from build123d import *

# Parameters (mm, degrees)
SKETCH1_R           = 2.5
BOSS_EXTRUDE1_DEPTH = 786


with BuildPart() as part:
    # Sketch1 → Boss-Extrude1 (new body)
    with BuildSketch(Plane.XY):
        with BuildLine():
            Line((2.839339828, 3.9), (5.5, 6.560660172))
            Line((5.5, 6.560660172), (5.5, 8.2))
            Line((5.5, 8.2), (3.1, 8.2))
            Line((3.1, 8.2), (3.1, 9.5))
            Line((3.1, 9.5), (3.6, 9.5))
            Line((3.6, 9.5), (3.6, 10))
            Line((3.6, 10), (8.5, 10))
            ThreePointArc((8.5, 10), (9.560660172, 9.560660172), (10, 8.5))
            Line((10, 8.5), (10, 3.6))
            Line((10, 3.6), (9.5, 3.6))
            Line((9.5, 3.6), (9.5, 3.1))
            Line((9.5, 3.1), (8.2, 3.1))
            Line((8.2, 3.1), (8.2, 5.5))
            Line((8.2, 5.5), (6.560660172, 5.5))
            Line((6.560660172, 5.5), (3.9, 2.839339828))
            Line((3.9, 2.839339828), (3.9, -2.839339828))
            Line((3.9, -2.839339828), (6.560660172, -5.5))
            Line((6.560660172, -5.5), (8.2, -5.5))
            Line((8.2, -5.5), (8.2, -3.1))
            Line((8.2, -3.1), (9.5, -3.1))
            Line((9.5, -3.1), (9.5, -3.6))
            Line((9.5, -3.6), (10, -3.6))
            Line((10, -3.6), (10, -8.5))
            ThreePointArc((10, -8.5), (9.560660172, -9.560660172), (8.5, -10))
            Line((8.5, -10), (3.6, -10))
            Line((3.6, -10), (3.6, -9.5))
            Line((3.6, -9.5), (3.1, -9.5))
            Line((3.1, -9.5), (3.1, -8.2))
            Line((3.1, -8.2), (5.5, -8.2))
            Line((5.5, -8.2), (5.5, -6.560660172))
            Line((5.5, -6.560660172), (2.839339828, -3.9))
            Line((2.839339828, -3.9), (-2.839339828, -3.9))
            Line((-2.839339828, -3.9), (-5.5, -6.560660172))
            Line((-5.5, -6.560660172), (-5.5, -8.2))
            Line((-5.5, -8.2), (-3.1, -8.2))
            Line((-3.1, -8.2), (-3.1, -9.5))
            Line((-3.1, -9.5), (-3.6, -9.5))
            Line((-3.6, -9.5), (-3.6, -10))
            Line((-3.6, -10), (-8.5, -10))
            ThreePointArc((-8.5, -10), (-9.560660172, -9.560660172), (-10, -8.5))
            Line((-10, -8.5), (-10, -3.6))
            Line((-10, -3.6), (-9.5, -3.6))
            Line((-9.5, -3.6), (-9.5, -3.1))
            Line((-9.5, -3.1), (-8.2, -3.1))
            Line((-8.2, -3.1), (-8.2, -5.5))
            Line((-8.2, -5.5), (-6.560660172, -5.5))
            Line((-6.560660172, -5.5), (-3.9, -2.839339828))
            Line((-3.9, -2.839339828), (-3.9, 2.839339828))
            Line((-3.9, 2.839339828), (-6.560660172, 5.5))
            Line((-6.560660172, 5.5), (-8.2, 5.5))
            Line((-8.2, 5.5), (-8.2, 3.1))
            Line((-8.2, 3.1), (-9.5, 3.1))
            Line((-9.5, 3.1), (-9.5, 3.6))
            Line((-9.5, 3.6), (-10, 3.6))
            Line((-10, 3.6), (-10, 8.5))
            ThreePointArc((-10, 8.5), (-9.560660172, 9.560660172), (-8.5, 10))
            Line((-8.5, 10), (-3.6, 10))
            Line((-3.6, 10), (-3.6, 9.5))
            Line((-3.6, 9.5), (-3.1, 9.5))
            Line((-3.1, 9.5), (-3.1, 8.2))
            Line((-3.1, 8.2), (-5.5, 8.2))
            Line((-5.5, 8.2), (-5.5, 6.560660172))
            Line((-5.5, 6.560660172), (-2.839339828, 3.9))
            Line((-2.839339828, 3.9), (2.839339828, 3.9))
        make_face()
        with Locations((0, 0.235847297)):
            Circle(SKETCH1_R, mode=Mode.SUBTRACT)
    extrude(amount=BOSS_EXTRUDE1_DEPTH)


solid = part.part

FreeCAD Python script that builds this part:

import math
import FreeCAD as App
import Part
import Sketcher
from FreeCAD import Vector

doc = App.newDocument("Part")
body = doc.addObject("PartDesign::Body", "Body")

# Sketch on XY plane
sketch1 = body.newObject("Sketcher::SketchObject", "Sketch")
sketch1.AttachmentSupport = (doc.getObject("XY_Plane"), [""])
sketch1.MapMode = "FlatFace"
sketch1.addGeometry([
    Part.LineSegment(Vector(5.5, 6.6, 0), Vector(2.8, 3.9, 0)),  # 0
    Part.LineSegment(Vector(2.8, 3.9, 0), Vector(-2.8, 3.9, 0)),  # 1
    Part.LineSegment(Vector(-2.8, 3.9, 0), Vector(-5.5, 6.6, 0)),  # 2
    Part.LineSegment(Vector(-5.5, 6.6, 0), Vector(-5.5, 8.2, 0)),  # 3
    Part.LineSegment(Vector(-5.5, 8.2, 0), Vector(-3.1, 8.2, 0)),  # 4
    Part.LineSegment(Vector(-3.1, 8.2, 0), Vector(-3.1, 9.5, 0)),  # 5
    Part.LineSegment(Vector(-3.1, 9.5, 0), Vector(-3.6, 9.5, 0)),  # 6
    Part.LineSegment(Vector(-3.6, 9.5, 0), Vector(-3.6, 10, 0)),  # 7
    Part.LineSegment(Vector(-3.6, 10, 0), Vector(-8.5, 10, 0)),  # 8
    Part.ArcOfCircle(Part.Circle(Vector(-8.5, 8.5, 0), Vector(0, 0, 1), 1.5), math.radians(90), math.radians(180)),  # 9
    Part.LineSegment(Vector(-10, 8.5, 0), Vector(-10, 3.6, 0)),  # 10
    Part.LineSegment(Vector(-10, 3.6, 0), Vector(-9.5, 3.6, 0)),  # 11
    Part.LineSegment(Vector(-9.5, 3.6, 0), Vector(-9.5, 3.1, 0)),  # 12
    Part.LineSegment(Vector(-9.5, 3.1, 0), Vector(-8.2, 3.1, 0)),  # 13
    Part.LineSegment(Vector(-8.2, 3.1, 0), Vector(-8.2, 5.5, 0)),  # 14
    Part.LineSegment(Vector(-8.2, 5.5, 0), Vector(-6.6, 5.5, 0)),  # 15
    Part.LineSegment(Vector(-6.6, 5.5, 0), Vector(-3.9, 2.8, 0)),  # 16
    Part.LineSegment(Vector(-3.9, 2.8, 0), Vector(-3.9, -2.8, 0)),  # 17
    Part.LineSegment(Vector(-3.9, -2.8, 0), Vector(-6.6, -5.5, 0)),  # 18
    Part.LineSegment(Vector(-6.6, -5.5, 0), Vector(-8.2, -5.5, 0)),  # 19
    Part.LineSegment(Vector(-8.2, -5.5, 0), Vector(-8.2, -3.1, 0)),  # 20
    Part.LineSegment(Vector(-8.2, -3.1, 0), Vector(-9.5, -3.1, 0)),  # 21
    Part.LineSegment(Vector(-9.5, -3.1, 0), Vector(-9.5, -3.6, 0)),  # 22
    Part.LineSegment(Vector(-9.5, -3.6, 0), Vector(-10, -3.6, 0)),  # 23
    Part.LineSegment(Vector(-10, -3.6, 0), Vector(-10, -8.5, 0)),  # 24
    Part.ArcOfCircle(Part.Circle(Vector(-8.5, -8.5, 0), Vector(0, 0, 1), 1.5), math.radians(180), math.radians(270)),  # 25
    Part.LineSegment(Vector(-8.5, -10, 0), Vector(-3.6, -10, 0)),  # 26
    Part.LineSegment(Vector(-3.6, -10, 0), Vector(-3.6, -9.5, 0)),  # 27
    Part.LineSegment(Vector(-3.6, -9.5, 0), Vector(-3.1, -9.5, 0)),  # 28
    Part.LineSegment(Vector(-3.1, -9.5, 0), Vector(-3.1, -8.2, 0)),  # 29
    Part.LineSegment(Vector(-3.1, -8.2, 0), Vector(-5.5, -8.2, 0)),  # 30
    Part.LineSegment(Vector(-5.5, -8.2, 0), Vector(-5.5, -6.6, 0)),  # 31
    Part.LineSegment(Vector(-5.5, -6.6, 0), Vector(-2.8, -3.9, 0)),  # 32
    Part.LineSegment(Vector(-2.8, -3.9, 0), Vector(2.8, -3.9, 0)),  # 33
    Part.LineSegment(Vector(2.8, -3.9, 0), Vector(5.5, -6.6, 0)),  # 34
    Part.LineSegment(Vector(5.5, -6.6, 0), Vector(5.5, -8.2, 0)),  # 35
    Part.LineSegment(Vector(5.5, -8.2, 0), Vector(3.1, -8.2, 0)),  # 36
    Part.LineSegment(Vector(3.1, -8.2, 0), Vector(3.1, -9.5, 0)),  # 37
    Part.LineSegment(Vector(3.1, -9.5, 0), Vector(3.6, -9.5, 0)),  # 38
    Part.LineSegment(Vector(3.6, -9.5, 0), Vector(3.6, -10, 0)),  # 39
    Part.LineSegment(Vector(3.6, -10, 0), Vector(8.5, -10, 0)),  # 40
    Part.ArcOfCircle(Part.Circle(Vector(8.5, -8.5, 0), Vector(0, 0, 1), 1.5), math.radians(-90), math.radians(0)),  # 41
    Part.LineSegment(Vector(10, -8.5, 0), Vector(10, -3.6, 0)),  # 42
    Part.LineSegment(Vector(10, -3.6, 0), Vector(9.5, -3.6, 0)),  # 43
    Part.LineSegment(Vector(9.5, -3.6, 0), Vector(9.5, -3.1, 0)),  # 44
    Part.LineSegment(Vector(9.5, -3.1, 0), Vector(8.2, -3.1, 0)),  # 45
    Part.LineSegment(Vector(8.2, -3.1, 0), Vector(8.2, -5.5, 0)),  # 46
    Part.LineSegment(Vector(8.2, -5.5, 0), Vector(6.6, -5.5, 0)),  # 47
    Part.LineSegment(Vector(6.6, -5.5, 0), Vector(3.9, -2.8, 0)),  # 48
    Part.LineSegment(Vector(3.9, -2.8, 0), Vector(3.9, 2.8, 0)),  # 49
    Part.LineSegment(Vector(3.9, 2.8, 0), Vector(6.6, 5.5, 0)),  # 50
    Part.LineSegment(Vector(6.6, 5.5, 0), Vector(8.2, 5.5, 0)),  # 51
    Part.LineSegment(Vector(8.2, 5.5, 0), Vector(8.2, 3.1, 0)),  # 52
    Part.LineSegment(Vector(8.2, 3.1, 0), Vector(9.5, 3.1, 0)),  # 53
    Part.LineSegment(Vector(9.5, 3.1, 0), Vector(9.5, 3.6, 0)),  # 54
    Part.LineSegment(Vector(9.5, 3.6, 0), Vector(10, 3.6, 0)),  # 55
    Part.LineSegment(Vector(10, 3.6, 0), Vector(10, 8.5, 0)),  # 56
    Part.ArcOfCircle(Part.Circle(Vector(8.5, 8.5, 0), Vector(0, 0, 1), 1.5), math.radians(0), math.radians(90)),  # 57
    Part.LineSegment(Vector(8.5, 10, 0), Vector(3.6, 10, 0)),  # 58
    Part.LineSegment(Vector(3.6, 10, 0), Vector(3.6, 9.5, 0)),  # 59
    Part.LineSegment(Vector(3.6, 9.5, 0), Vector(3.1, 9.5, 0)),  # 60
    Part.LineSegment(Vector(3.1, 9.5, 0), Vector(3.1, 8.2, 0)),  # 61
    Part.LineSegment(Vector(3.1, 8.2, 0), Vector(5.5, 8.2, 0)),  # 62
    Part.LineSegment(Vector(5.5, 8.2, 0), Vector(5.5, 6.6, 0)),  # 63
    Part.Circle(Vector(0, 0.2, 0), Vector(0, 0, 1), 2.5),  # 64
], False)
sketch1.addConstraint([
    Sketcher.Constraint("Coincident", 0, 2, 1, 1),
    Sketcher.Constraint("Coincident", 1, 2, 2, 1),
    Sketcher.Constraint("Coincident", 2, 2, 3, 1),
    Sketcher.Constraint("Coincident", 3, 2, 4, 1),
    Sketcher.Constraint("Coincident", 4, 2, 5, 1),
    Sketcher.Constraint("Coincident", 5, 2, 6, 1),
    Sketcher.Constraint("Coincident", 6, 2, 7, 1),
    Sketcher.Constraint("Coincident", 7, 2, 8, 1),
    Sketcher.Constraint("Tangent", 8, 2, 9, 1),
    Sketcher.Constraint("Tangent", 9, 2, 10, 1),
    Sketcher.Constraint("Coincident", 10, 2, 11, 1),
    Sketcher.Constraint("Coincident", 11, 2, 12, 1),
    Sketcher.Constraint("Coincident", 12, 2, 13, 1),
    Sketcher.Constraint("Coincident", 13, 2, 14, 1),
    Sketcher.Constraint("Coincident", 14, 2, 15, 1),
    Sketcher.Constraint("Coincident", 15, 2, 16, 1),
    Sketcher.Constraint("Coincident", 16, 2, 17, 1),
    Sketcher.Constraint("Coincident", 17, 2, 18, 1),
    Sketcher.Constraint("Coincident", 18, 2, 19, 1),
    Sketcher.Constraint("Coincident", 19, 2, 20, 1),
    Sketcher.Constraint("Coincident", 20, 2, 21, 1),
    Sketcher.Constraint("Coincident", 21, 2, 22, 1),
    Sketcher.Constraint("Coincident", 22, 2, 23, 1),
    Sketcher.Constraint("Coincident", 23, 2, 24, 1),
    Sketcher.Constraint("Tangent", 24, 2, 25, 1),
    Sketcher.Constraint("Tangent", 25, 2, 26, 1),
    Sketcher.Constraint("Coincident", 26, 2, 27, 1),
    Sketcher.Constraint("Coincident", 27, 2, 28, 1),
    Sketcher.Constraint("Coincident", 28, 2, 29, 1),
    Sketcher.Constraint("Coincident", 29, 2, 30, 1),
    Sketcher.Constraint("Coincident", 30, 2, 31, 1),
    Sketcher.Constraint("Coincident", 31, 2, 32, 1),
    Sketcher.Constraint("Coincident", 32, 2, 33, 1),
    Sketcher.Constraint("Coincident", 33, 2, 34, 1),
    Sketcher.Constraint("Coincident", 34, 2, 35, 1),
    Sketcher.Constraint("Coincident", 35, 2, 36, 1),
    Sketcher.Constraint("Coincident", 36, 2, 37, 1),
    Sketcher.Constraint("Coincident", 37, 2, 38, 1),
    Sketcher.Constraint("Coincident", 38, 2, 39, 1),
    Sketcher.Constraint("Coincident", 39, 2, 40, 1),
    Sketcher.Constraint("Tangent", 40, 2, 41, 1),
    Sketcher.Constraint("Tangent", 41, 2, 42, 1),
    Sketcher.Constraint("Coincident", 42, 2, 43, 1),
    Sketcher.Constraint("Coincident", 43, 2, 44, 1),
    Sketcher.Constraint("Coincident", 44, 2, 45, 1),
    Sketcher.Constraint("Coincident", 45, 2, 46, 1),
    Sketcher.Constraint("Coincident", 46, 2, 47, 1),
    Sketcher.Constraint("Coincident", 47, 2, 48, 1),
    Sketcher.Constraint("Coincident", 48, 2, 49, 1),
    Sketcher.Constraint("Coincident", 49, 2, 50, 1),
    Sketcher.Constraint("Coincident", 50, 2, 51, 1),
    Sketcher.Constraint("Coincident", 51, 2, 52, 1),
    Sketcher.Constraint("Coincident", 52, 2, 53, 1),
    Sketcher.Constraint("Coincident", 53, 2, 54, 1),
    Sketcher.Constraint("Coincident", 54, 2, 55, 1),
    Sketcher.Constraint("Coincident", 55, 2, 56, 1),
    Sketcher.Constraint("Tangent", 56, 2, 57, 1),
    Sketcher.Constraint("Tangent", 57, 2, 58, 1),
    Sketcher.Constraint("Coincident", 58, 2, 59, 1),
    Sketcher.Constraint("Coincident", 59, 2, 60, 1),
    Sketcher.Constraint("Coincident", 60, 2, 61, 1),
    Sketcher.Constraint("Coincident", 61, 2, 62, 1),
    Sketcher.Constraint("Coincident", 62, 2, 63, 1),
    Sketcher.Constraint("Coincident", 63, 2, 0, 1),
    Sketcher.Constraint("Horizontal", 1),
    Sketcher.Constraint("Vertical", 3),
    Sketcher.Constraint("Horizontal", 4),
    Sketcher.Constraint("Vertical", 5),
    Sketcher.Constraint("Horizontal", 6),
    Sketcher.Constraint("Vertical", 7),
    Sketcher.Constraint("Horizontal", 8),
    Sketcher.Constraint("Vertical", 10),
    Sketcher.Constraint("Horizontal", 11),
    Sketcher.Constraint("Vertical", 12),
    Sketcher.Constraint("Horizontal", 13),
    Sketcher.Constraint("Vertical", 14),
    Sketcher.Constraint("Horizontal", 15),
    Sketcher.Constraint("Vertical", 17),
    Sketcher.Constraint("Horizontal", 19),
    Sketcher.Constraint("Vertical", 20),
    Sketcher.Constraint("Horizontal", 21),
    Sketcher.Constraint("Vertical", 22),
    Sketcher.Constraint("Horizontal", 23),
    Sketcher.Constraint("Vertical", 24),
    Sketcher.Constraint("Horizontal", 26),
    Sketcher.Constraint("Vertical", 27),
    Sketcher.Constraint("Horizontal", 28),
    Sketcher.Constraint("Vertical", 29),
    Sketcher.Constraint("Horizontal", 30),
    Sketcher.Constraint("Vertical", 31),
    Sketcher.Constraint("Horizontal", 33),
    Sketcher.Constraint("Vertical", 35),
    Sketcher.Constraint("Horizontal", 36),
    Sketcher.Constraint("Vertical", 37),
    Sketcher.Constraint("Horizontal", 38),
    Sketcher.Constraint("Vertical", 39),
    Sketcher.Constraint("Horizontal", 40),
    Sketcher.Constraint("Vertical", 42),
    Sketcher.Constraint("Horizontal", 43),
    Sketcher.Constraint("Vertical", 44),
    Sketcher.Constraint("Horizontal", 45),
    Sketcher.Constraint("Vertical", 46),
    Sketcher.Constraint("Horizontal", 47),
    Sketcher.Constraint("Vertical", 49),
    Sketcher.Constraint("Horizontal", 51),
    Sketcher.Constraint("Vertical", 52),
    Sketcher.Constraint("Horizontal", 53),
    Sketcher.Constraint("Vertical", 54),
    Sketcher.Constraint("Horizontal", 55),
    Sketcher.Constraint("Vertical", 56),
    Sketcher.Constraint("Horizontal", 58),
    Sketcher.Constraint("Vertical", 59),
    Sketcher.Constraint("Horizontal", 60),
    Sketcher.Constraint("Vertical", 61),
    Sketcher.Constraint("Horizontal", 62),
    Sketcher.Constraint("Vertical", 63),
    Sketcher.Constraint("Equal", 9, 25),
    Sketcher.Constraint("Equal", 25, 41),
    Sketcher.Constraint("Equal", 41, 57),
    Sketcher.Constraint("Symmetric", 9, 3, 41, 3, -1, 1),
    Sketcher.Constraint("Symmetric", 25, 3, 57, 3, -1, 1),
    Sketcher.Constraint("Symmetric", 0, 2, 32, 2, -1, 1),
    Sketcher.Constraint("Symmetric", 2, 2, 34, 2, -1, 1),
    Sketcher.Constraint("Symmetric", 4, 2, 36, 2, -1, 1),
    Sketcher.Constraint("Symmetric", 6, 2, 38, 2, -1, 1),
    Sketcher.Constraint("Symmetric", 11, 2, 43, 2, -1, 1),
    Sketcher.Constraint("Symmetric", 13, 2, 45, 2, -1, 1),
    Sketcher.Constraint("Symmetric", 15, 2, 47, 2, -1, 1),
    Sketcher.Constraint("Symmetric", 16, 2, 48, 2, -1, 1),
    Sketcher.Constraint("Symmetric", 18, 2, 50, 2, -1, 1),
    Sketcher.Constraint("Symmetric", 20, 2, 52, 2, -1, 1),
    Sketcher.Constraint("Symmetric", 22, 2, 54, 2, -1, 1),
    Sketcher.Constraint("Symmetric", 27, 2, 59, 2, -1, 1),
    Sketcher.Constraint("Symmetric", 29, 2, 61, 2, -1, 1),
    Sketcher.Constraint("Symmetric", 31, 2, 63, 2, -1, 1),
    Sketcher.Constraint("Symmetric", 25, 3, 41, 3, -2),
    Sketcher.Constraint("Symmetric", 31, 2, 34, 2, -2),
    Sketcher.Constraint("Symmetric", 29, 2, 36, 2, -2),
    Sketcher.Constraint("Symmetric", 27, 2, 38, 2, -2),
    Sketcher.Constraint("Symmetric", 22, 2, 43, 2, -2),
    Sketcher.Constraint("Symmetric", 20, 2, 45, 2, -2),
    Sketcher.Constraint("Symmetric", 18, 2, 47, 2, -2),
    Sketcher.Constraint("PointOnObject", 64, 3, -2),
    Sketcher.Constraint("Perpendicular", 0, 2),
    Sketcher.Constraint("Parallel", 2, 16),
    Sketcher.Constraint("Perpendicular", 16, 18),
    Sketcher.Constraint("Perpendicular", 32, 34),
    Sketcher.Constraint("Perpendicular", 48, 50),
    Sketcher.Constraint("Horizontal", 17, 2, 48, 2),
    Sketcher.Constraint("Equal", 6, 11),
    Sketcher.Constraint("Equal", 51, 3),
    Sketcher.Constraint("Equal", 53, 5),
    Sketcher.Constraint("Equal", 60, 7),
    Sketcher.Constraint("Equal", 58, 10),
    Sketcher.Constraint("Equal", 7, 12),
    Sketcher.Constraint("Equal", 62, 14),
    Sketcher.Constraint("Equal", 33, 17),
    Sketcher.Constraint("Equal", 2, 16),
    Sketcher.Constraint("Diameter", 64, 5.0),
    Sketcher.Constraint("Radius", 9, 1.5),
    Sketcher.Constraint("DistanceX", 4, 1, 4, 2, 2.4),
    Sketcher.Constraint("DistanceX", 6, 2, 6, 1, 0.5),
    Sketcher.Constraint("DistanceX", 8, 2, 8, 1, 4.9),
    Sketcher.Constraint("DistanceX", 13, 1, 13, 2, 1.3),
    Sketcher.Constraint("DistanceY", -1, 1, 7, 2, 10.0),
    Sketcher.Constraint("DistanceY", -1, 1, 0, 2, 3.9),
    Sketcher.Constraint("DistanceX", 1, 2, 1, 1, 5.67868),
    Sketcher.Constraint("DistanceY", -1, 1, 64, 3, 0.235847),
])
pad1 = body.newObject("PartDesign::Pad", "Pad")
pad1.Profile = sketch1
pad1.Length = 786

doc.recompute()
